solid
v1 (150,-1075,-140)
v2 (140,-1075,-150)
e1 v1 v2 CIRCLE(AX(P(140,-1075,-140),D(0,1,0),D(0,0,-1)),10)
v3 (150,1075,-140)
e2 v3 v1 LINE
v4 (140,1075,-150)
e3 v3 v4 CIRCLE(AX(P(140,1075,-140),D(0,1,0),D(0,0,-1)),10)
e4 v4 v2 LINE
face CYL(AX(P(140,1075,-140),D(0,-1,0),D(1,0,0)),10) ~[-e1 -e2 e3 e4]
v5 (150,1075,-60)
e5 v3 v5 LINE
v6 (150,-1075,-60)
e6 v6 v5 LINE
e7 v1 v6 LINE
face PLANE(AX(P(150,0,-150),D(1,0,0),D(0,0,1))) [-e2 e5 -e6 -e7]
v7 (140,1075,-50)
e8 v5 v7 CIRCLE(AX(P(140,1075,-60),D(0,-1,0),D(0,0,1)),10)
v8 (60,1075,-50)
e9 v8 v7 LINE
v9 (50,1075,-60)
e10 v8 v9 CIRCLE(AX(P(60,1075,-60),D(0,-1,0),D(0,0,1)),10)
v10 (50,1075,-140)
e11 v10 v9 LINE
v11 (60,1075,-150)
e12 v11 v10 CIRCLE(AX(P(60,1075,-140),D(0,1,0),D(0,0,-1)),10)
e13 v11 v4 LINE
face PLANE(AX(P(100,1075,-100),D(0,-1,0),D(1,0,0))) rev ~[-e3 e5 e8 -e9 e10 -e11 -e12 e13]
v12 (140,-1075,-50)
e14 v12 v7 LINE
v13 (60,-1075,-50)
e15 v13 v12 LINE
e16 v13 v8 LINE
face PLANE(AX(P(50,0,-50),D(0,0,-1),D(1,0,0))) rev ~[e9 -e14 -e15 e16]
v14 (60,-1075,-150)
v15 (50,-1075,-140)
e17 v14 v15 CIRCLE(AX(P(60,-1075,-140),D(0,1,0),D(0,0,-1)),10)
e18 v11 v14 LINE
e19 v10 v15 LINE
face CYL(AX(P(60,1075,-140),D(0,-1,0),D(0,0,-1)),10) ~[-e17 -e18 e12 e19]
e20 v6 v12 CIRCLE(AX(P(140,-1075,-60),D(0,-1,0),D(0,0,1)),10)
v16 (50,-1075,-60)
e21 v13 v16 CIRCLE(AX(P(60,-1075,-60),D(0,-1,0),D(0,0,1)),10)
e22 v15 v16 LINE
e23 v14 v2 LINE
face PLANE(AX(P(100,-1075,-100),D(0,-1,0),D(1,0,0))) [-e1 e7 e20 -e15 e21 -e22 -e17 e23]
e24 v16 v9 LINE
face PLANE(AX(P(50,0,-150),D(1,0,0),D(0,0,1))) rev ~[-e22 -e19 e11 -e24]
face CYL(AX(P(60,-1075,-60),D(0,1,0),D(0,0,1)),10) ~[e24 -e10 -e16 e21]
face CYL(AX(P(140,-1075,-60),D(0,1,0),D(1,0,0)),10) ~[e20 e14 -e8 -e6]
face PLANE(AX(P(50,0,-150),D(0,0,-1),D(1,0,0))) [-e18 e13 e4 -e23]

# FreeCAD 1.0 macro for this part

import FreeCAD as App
import Part
import Sketcher
from FreeCAD import Vector


def edges_at(feature, points):
    """Names of the edges that pass closest to the given points."""
    edges = feature.Shape.Edges
    near = lambda p: min(range(len(edges)), key=lambda i: edges[i].distToShape(Part.Vertex(*p))[0])
    return sorted({f"Edge{near(p) + 1}" for p in points})


def add_polygon(sketch, points):
    """Adds a closed chain of lines whose ends are joined by coincident constraints."""
    first, n = sketch.GeometryCount, len(points)
    for a, b in zip(points, points[1:] + points[:1]):
        sketch.addGeometry(Part.LineSegment(App.Vector(*a, 0), App.Vector(*b, 0)), False)
    for i in range(n):
        sketch.addConstraint(Sketcher.Constraint("Coincident", first + i, 2, first + (i + 1) % n, 1))

doc = App.newDocument("Part")
body = doc.addObject("PartDesign::Body", "Body")

# Sketch on XZ plane
sketch1 = body.newObject("Sketcher::SketchObject", "Sketch")
sketch1.AttachmentSupport = (doc.getObject("XZ_Plane"), [""])
sketch1.MapMode = "FlatFace"
add_polygon(sketch1, [(-150, -50), (-150, -150), (-50, -150), (-50, -50)])  # lines 0-3
sketch1.addConstraint(Sketcher.Constraint("Vertical", 0))
sketch1.addConstraint(Sketcher.Constraint("Horizontal", 1))
sketch1.addConstraint(Sketcher.Constraint("Vertical", 2))
sketch1.addConstraint(Sketcher.Constraint("Horizontal", 3))
sketch1.addConstraint(Sketcher.Constraint("Equal", 3, 0))
sketch1.addConstraint(Sketcher.Constraint("DistanceX", 1, 1, 1, 2, 100.0))
sketch1.addConstraint(Sketcher.Constraint("DistanceX", 0, 2, -1, 1, 150.0))
sketch1.addConstraint(Sketcher.Constraint("DistanceY", 0, 2, -1, 1, 150.0))
pad1 = body.newObject("PartDesign::Pad", "Pad")
pad1.Profile = sketch1
pad1.Length = 2150
pad1.Midplane = True
doc.recompute()

fillet = body.newObject("PartDesign::Fillet", "Fillet")
fillet.Base = (pad1, edges_at(pad1, [(-50, 0, -50)]))
fillet.Radius = 10
doc.recompute()

fillet2 = body.newObject("PartDesign::Fillet", "Fillet001")
fillet2.Base = (fillet, edges_at(fillet, [(-150, 0, -150), (-50, 0, -150), (-150, 0, -50)]))
fillet2.Radius = 10
body2 = doc.addObject("PartDesign::Body", "Body001")
doc.recompute()

body.Placement = App.Placement(Vector(200, 0, 0), App.Rotation(Vector(0, 0, 1), 0))
boolean = body2.newObject("PartDesign::Boolean", "Boolean")
boolean.Type = "Fuse"
boolean.addObjects([body])

doc.recompute()
